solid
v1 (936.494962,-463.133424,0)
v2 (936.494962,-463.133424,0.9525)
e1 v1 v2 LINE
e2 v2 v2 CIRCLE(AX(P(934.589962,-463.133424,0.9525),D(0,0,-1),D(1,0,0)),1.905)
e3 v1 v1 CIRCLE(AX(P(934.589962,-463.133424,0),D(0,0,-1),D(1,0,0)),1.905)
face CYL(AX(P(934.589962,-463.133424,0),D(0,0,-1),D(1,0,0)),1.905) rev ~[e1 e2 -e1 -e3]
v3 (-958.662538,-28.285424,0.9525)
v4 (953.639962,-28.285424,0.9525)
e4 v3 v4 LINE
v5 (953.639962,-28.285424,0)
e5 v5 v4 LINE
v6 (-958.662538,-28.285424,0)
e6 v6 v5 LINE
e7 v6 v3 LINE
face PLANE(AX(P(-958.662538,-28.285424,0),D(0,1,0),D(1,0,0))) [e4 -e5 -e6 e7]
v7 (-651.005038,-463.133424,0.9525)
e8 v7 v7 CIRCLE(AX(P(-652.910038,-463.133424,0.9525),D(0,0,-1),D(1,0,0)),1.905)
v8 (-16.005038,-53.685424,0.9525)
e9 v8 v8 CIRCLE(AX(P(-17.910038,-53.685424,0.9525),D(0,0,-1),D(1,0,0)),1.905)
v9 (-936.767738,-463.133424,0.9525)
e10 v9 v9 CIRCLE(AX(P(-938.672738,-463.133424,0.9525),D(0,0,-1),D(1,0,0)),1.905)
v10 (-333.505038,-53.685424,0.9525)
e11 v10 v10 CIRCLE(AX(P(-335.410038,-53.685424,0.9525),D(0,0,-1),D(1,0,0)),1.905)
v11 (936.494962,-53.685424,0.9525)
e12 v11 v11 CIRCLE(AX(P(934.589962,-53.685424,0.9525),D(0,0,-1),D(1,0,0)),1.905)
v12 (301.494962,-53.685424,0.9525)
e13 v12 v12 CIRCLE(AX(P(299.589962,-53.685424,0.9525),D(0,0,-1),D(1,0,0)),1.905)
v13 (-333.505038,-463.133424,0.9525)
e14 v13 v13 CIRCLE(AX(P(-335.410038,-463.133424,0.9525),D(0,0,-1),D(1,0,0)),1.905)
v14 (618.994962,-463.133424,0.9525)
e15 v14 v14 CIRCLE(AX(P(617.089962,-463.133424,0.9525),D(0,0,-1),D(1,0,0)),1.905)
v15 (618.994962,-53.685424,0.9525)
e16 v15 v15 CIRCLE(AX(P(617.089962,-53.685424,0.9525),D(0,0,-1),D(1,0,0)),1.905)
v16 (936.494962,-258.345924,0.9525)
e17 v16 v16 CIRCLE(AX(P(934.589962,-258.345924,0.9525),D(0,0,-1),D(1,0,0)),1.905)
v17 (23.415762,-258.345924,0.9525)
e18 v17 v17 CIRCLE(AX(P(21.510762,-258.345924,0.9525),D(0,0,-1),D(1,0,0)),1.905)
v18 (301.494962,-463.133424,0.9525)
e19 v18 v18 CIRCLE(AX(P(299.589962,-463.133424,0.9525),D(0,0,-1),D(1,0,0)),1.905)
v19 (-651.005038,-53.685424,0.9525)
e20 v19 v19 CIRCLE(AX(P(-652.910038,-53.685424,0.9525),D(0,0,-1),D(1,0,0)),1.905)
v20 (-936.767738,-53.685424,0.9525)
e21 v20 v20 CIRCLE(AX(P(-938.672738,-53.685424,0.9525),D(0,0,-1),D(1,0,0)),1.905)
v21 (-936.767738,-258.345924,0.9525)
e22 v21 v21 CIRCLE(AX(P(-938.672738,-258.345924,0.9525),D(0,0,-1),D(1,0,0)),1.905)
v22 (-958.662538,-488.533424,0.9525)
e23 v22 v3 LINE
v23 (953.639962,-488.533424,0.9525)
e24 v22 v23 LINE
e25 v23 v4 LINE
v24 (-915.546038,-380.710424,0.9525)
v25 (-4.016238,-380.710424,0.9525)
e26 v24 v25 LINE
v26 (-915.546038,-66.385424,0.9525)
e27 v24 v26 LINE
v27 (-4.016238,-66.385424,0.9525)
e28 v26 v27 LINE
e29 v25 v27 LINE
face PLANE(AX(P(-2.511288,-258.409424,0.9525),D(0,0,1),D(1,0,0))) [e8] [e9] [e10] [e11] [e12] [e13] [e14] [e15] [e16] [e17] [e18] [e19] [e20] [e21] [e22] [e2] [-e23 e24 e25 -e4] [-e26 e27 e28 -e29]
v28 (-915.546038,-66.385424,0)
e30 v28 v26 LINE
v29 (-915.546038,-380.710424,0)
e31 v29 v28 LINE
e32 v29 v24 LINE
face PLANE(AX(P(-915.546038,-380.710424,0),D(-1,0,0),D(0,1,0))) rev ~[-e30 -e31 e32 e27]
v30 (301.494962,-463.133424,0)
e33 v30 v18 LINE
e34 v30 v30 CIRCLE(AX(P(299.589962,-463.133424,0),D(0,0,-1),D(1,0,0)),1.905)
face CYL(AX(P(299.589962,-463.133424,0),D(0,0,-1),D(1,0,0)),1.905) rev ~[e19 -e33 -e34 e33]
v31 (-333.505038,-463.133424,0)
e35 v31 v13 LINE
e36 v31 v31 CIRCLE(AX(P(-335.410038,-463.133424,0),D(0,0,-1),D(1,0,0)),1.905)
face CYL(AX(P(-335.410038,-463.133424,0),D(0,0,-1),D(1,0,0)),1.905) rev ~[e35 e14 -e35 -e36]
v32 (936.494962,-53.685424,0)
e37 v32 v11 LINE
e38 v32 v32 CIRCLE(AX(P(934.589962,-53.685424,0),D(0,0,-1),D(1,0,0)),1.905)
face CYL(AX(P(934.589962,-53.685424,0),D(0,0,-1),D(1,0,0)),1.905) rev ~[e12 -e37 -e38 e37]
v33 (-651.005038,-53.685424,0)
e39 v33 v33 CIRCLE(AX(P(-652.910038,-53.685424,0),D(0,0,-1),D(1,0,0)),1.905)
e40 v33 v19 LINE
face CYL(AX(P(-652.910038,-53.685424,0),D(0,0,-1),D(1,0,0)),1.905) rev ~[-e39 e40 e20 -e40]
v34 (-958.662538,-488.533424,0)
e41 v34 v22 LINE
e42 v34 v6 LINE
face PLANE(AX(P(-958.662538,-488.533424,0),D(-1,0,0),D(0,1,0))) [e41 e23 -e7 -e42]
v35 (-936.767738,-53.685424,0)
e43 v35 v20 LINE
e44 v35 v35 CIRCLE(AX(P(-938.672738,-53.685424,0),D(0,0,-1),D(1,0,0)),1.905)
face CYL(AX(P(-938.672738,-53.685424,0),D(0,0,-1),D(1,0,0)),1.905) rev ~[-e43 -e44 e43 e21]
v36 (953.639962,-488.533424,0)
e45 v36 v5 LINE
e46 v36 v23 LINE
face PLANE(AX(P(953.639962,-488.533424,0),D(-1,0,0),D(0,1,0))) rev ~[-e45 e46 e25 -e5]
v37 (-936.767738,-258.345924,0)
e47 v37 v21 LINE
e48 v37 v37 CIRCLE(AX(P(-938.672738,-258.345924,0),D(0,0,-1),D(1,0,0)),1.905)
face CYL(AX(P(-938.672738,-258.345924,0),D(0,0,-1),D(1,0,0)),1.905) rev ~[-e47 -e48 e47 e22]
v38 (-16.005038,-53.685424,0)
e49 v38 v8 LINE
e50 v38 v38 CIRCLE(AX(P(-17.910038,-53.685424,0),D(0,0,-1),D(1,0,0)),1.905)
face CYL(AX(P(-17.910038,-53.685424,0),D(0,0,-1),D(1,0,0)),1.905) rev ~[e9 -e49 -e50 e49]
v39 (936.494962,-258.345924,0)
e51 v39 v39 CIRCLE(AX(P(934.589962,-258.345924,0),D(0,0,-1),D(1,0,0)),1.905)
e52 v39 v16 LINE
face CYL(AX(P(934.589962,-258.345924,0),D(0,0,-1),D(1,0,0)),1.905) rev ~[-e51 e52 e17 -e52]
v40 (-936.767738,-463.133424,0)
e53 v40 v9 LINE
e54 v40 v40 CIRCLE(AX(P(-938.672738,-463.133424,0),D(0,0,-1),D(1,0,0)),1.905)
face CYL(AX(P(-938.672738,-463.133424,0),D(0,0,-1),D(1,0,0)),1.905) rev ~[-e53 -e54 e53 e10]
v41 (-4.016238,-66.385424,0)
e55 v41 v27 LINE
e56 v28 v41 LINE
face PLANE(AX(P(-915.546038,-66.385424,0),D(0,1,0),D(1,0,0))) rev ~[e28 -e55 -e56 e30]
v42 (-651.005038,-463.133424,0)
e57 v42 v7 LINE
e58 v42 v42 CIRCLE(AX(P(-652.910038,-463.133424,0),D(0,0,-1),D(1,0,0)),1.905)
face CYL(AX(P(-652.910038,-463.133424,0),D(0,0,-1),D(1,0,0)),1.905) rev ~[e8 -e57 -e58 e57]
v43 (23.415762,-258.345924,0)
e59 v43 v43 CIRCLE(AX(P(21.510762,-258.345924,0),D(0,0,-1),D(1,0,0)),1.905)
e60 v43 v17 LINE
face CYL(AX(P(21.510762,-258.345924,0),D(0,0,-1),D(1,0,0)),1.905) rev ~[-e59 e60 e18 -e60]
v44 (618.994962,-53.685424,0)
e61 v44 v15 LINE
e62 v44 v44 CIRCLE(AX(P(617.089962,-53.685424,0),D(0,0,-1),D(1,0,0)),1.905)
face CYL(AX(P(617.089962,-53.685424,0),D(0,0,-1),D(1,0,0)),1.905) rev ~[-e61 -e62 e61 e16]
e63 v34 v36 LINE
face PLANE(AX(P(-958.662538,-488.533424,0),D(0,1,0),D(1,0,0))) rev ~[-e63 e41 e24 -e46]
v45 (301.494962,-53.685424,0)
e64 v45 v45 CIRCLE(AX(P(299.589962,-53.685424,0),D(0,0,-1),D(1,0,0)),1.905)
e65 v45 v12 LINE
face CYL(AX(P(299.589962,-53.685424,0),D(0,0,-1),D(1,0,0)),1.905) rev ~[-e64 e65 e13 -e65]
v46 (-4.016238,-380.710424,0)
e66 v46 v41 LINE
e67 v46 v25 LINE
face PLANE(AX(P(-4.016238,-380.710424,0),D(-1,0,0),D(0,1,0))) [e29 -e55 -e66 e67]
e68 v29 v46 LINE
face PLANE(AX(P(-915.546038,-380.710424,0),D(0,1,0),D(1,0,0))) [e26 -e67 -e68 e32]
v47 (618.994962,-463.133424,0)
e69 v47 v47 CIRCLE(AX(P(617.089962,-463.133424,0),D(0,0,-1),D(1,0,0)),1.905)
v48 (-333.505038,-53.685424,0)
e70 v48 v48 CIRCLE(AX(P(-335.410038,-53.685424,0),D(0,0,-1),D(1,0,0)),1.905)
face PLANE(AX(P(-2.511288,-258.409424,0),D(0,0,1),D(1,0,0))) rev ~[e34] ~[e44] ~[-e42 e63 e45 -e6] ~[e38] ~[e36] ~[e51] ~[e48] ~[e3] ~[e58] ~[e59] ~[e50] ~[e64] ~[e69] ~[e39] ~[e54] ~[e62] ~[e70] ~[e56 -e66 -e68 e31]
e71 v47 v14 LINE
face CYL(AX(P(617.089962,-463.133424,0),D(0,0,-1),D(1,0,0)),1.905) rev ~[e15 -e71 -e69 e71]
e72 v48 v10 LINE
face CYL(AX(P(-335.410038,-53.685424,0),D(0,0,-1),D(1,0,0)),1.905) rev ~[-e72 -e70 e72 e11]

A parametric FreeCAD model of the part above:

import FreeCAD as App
import Part
import Sketcher
from FreeCAD import Vector
Q = App.Units.Quantity

doc = App.newDocument("Part")
body = doc.addObject("PartDesign::Body", "Body")

# Sketch on XY plane
sketch1 = doc.addObject("Sketcher::SketchObject", "Sketch")
body.addObject(sketch1)
sketch1.AttachmentSupport = (doc.XY_Plane, [""])
sketch1.MapMode = "FlatFace"
sketch1.addGeometry([
    Part.LineSegment(Vector(-959, -28, 0), Vector(-959, -489, 0)),  # 0
    Part.LineSegment(Vector(-959, -489, 0), Vector(954, -489, 0)),  # 1
    Part.LineSegment(Vector(954, -489, 0), Vector(954, -28, 0)),  # 2
    Part.LineSegment(Vector(954, -28, 0), Vector(-959, -28, 0)),  # 3
    Part.LineSegment(Vector(-4, -381, 0), Vector(-916, -381, 0)),  # 4
    Part.LineSegment(Vector(-916, -381, 0), Vector(-916, -66, 0)),  # 5
    Part.LineSegment(Vector(-916, -66, 0), Vector(-4, -66, 0)),  # 6
    Part.LineSegment(Vector(-4, -66, 0), Vector(-4, -381, 0)),  # 7
], False)
sketch1.addConstraint([
    Sketcher.Constraint("Coincident", 0, 2, 1, 1),
    Sketcher.Constraint("Coincident", 1, 2, 2, 1),
    Sketcher.Constraint("Coincident", 2, 2, 3, 1),
    Sketcher.Constraint("Coincident", 3, 2, 0, 1),
    Sketcher.Constraint("Coincident", 4, 2, 5, 1),
    Sketcher.Constraint("Coincident", 5, 2, 6, 1),
    Sketcher.Constraint("Coincident", 6, 2, 7, 1),
    Sketcher.Constraint("Coincident", 7, 2, 4, 1),
    Sketcher.Constraint("Vertical", 0),
    Sketcher.Constraint("Horizontal", 1),
    Sketcher.Constraint("Vertical", 2),
    Sketcher.Constraint("Horizontal", 3),
    Sketcher.Constraint("Horizontal", 4),
    Sketcher.Constraint("Vertical", 5),
    Sketcher.Constraint("Horizontal", 6),
    Sketcher.Constraint("Vertical", 7),
    Sketcher.Constraint("DistanceY", 0, 2, 0, 1, Q("18.12 in")),
    Sketcher.Constraint("DistanceY", 5, 2, 3, 2, Q("1.5 in")),
    Sketcher.Constraint("DistanceX", 4, 2, 4, 1, Q("35.887 in")),
    Sketcher.Constraint("DistanceY", 5, 1, 5, 2, Q("12.375 in")),
    Sketcher.Constraint("DistanceX", 4, 2, 1, 2, Q("73.59 in")),
    Sketcher.Constraint("DistanceX", 1, 1, 1, 2, Q("75.2875 in")),
    Sketcher.Constraint("DistanceX", 0, 2, -1, 1, 958.662538),
    Sketcher.Constraint("DistanceY", 0, 2, -1, 1, 488.533424),
])
pad1 = doc.addObject("PartDesign::Pad", "Pad")
body.addObject(pad1)
pad1.Profile = sketch1
pad1.Length = Q("0.0375 in")

# Sketch on XY plane
sketch2 = doc.addObject("Sketcher::SketchObject", "Sketch001")
body.addObject(sketch2)
sketch2.AttachmentSupport = (doc.XY_Plane, [""])
sketch2.MapMode = "FlatFace"
sketch2.addGeometry([
    Part.Circle(Vector(934.6, -53.7, 0), Vector(0, 0, 1), 1.9),  # 0
    Part.Circle(Vector(617.1, -53.7, 0), Vector(0, 0, 1), 1.9),  # 1
    Part.Circle(Vector(299.6, -53.7, 0), Vector(0, 0, 1), 1.9),  # 2
    Part.Circle(Vector(-17.9, -53.7, 0), Vector(0, 0, 1), 1.9),  # 3
    Part.Circle(Vector(-335.4, -53.7, 0), Vector(0, 0, 1), 1.9),  # 4
    Part.Circle(Vector(-652.9, -53.7, 0), Vector(0, 0, 1), 1.9),  # 5
    Part.Circle(Vector(-938.7, -53.7, 0), Vector(0, 0, 1), 1.9),  # 6
    Part.Circle(Vector(934.6, -258.3, 0), Vector(0, 0, 1), 1.9),  # 7
    Part.Circle(Vector(934.6, -463.1, 0), Vector(0, 0, 1), 1.9),  # 8
    Part.Circle(Vector(-938.7, -258.3, 0), Vector(0, 0, 1), 1.9),  # 9
    Part.Circle(Vector(-938.7, -463.1, 0), Vector(0, 0, 1), 1.9),  # 10
    Part.Circle(Vector(-652.9, -463.1, 0), Vector(0, 0, 1), 1.9),  # 11
    Part.Circle(Vector(-335.4, -463.1, 0), Vector(0, 0, 1), 1.9),  # 12
    Part.Circle(Vector(299.6, -463.1, 0), Vector(0, 0, 1), 1.9),  # 13
    Part.Circle(Vector(617.1, -463.1, 0), Vector(0, 0, 1), 1.9),  # 14
    Part.Circle(Vector(21.5, -258.3, 0), Vector(0, 0, 1), 1.9),  # 15
], False)
sketch2.addConstraint([
    Sketcher.Constraint("Equal", 0, 1),
    Sketcher.Constraint("Equal", 1, 2),
    Sketcher.Constraint("Equal", 2, 3),
    Sketcher.Constraint("Equal", 3, 4),
    Sketcher.Constraint("Equal", 4, 5),
    Sketcher.Constraint("Equal", 5, 6),
    Sketcher.Constraint("Equal", 6, 7),
    Sketcher.Constraint("Equal", 7, 8),
    Sketcher.Constraint("Equal", 8, 9),
    Sketcher.Constraint("Equal", 9, 10),
    Sketcher.Constraint("Equal", 10, 11),
    Sketcher.Constraint("Equal", 11, 12),
    Sketcher.Constraint("Equal", 12, 13),
    Sketcher.Constraint("Equal", 13, 14),
    Sketcher.Constraint("Equal", 14, 15),
    Sketcher.Constraint("Horizontal", 0, 3, 1, 3),
    Sketcher.Constraint("Horizontal", 1, 3, 2, 3),
    Sketcher.Constraint("Horizontal", 2, 3, 3, 3),
    Sketcher.Constraint("Horizontal", 3, 3, 4, 3),
    Sketcher.Constraint("Horizontal", 4, 3, 5, 3),
    Sketcher.Constraint("Horizontal", 5, 3, 6, 3),
    Sketcher.Constraint("Horizontal", 7, 3, 9, 3),
    Sketcher.Constraint("Horizontal", 8, 3, 10, 3),
    Sketcher.Constraint("Horizontal", 10, 3, 11, 3),
    Sketcher.Constraint("Horizontal", 11, 3, 12, 3),
    Sketcher.Constraint("Horizontal", 12, 3, 13, 3),
    Sketcher.Constraint("Horizontal", 13, 3, 14, 3),
    Sketcher.Constraint("Horizontal", 9, 3, 15, 3),
    Sketcher.Constraint("Vertical", 0, 3, 7, 3),
    Sketcher.Constraint("Vertical", 7, 3, 8, 3),
    Sketcher.Constraint("Vertical", 6, 3, 9, 3),
    Sketcher.Constraint("Vertical", 9, 3, 10, 3),
    Sketcher.Constraint("Vertical", 5, 3, 11, 3),
    Sketcher.Constraint("Vertical", 4, 3, 12, 3),
    Sketcher.Constraint("Vertical", 2, 3, 13, 3),
    Sketcher.Constraint("Vertical", 1, 3, 14, 3),
    Sketcher.Constraint("Diameter", 0, Q("0.15 in")),
    Sketcher.Constraint("DistanceX", 2, 3, 0, 3, Q("25 in")),
    Sketcher.Constraint("DistanceX", 3, 3, 1, 3, Q("25 in")),
    Sketcher.Constraint("DistanceX", 4, 3, 2, 3, Q("25 in")),
    Sketcher.Constraint("DistanceX", 5, 3, 3, 3, Q("25 in")),
    Sketcher.Constraint("DistanceX", 1, 3, 0, 3, Q("12.5 in")),
    Sketcher.Constraint("DistanceY", 8, 3, 0, 3, Q("16.12 in")),
    Sketcher.Constraint("DistanceY", 8, 3, 7, 3, Q("8.0625 in")),
    Sketcher.Constraint("DistanceX", 3, 3, 15, 3, Q("1.552 in")),
    Sketcher.Constraint("DistanceX", 6, 3, 5, 3, Q("11.2505 in")),
    Sketcher.Constraint("DistanceX", -1, 1, 0, 3, 934.589962),
    Sketcher.Constraint("DistanceY", 0, 3, -1, 1, 53.685424),
])
pocket1 = doc.addObject("PartDesign::Pocket", "Pocket")
body.addObject(pocket1)
pocket1.Profile = sketch2
pocket1.Length = Q("1 in")
pocket1.Reversed = True

doc.recompute()
